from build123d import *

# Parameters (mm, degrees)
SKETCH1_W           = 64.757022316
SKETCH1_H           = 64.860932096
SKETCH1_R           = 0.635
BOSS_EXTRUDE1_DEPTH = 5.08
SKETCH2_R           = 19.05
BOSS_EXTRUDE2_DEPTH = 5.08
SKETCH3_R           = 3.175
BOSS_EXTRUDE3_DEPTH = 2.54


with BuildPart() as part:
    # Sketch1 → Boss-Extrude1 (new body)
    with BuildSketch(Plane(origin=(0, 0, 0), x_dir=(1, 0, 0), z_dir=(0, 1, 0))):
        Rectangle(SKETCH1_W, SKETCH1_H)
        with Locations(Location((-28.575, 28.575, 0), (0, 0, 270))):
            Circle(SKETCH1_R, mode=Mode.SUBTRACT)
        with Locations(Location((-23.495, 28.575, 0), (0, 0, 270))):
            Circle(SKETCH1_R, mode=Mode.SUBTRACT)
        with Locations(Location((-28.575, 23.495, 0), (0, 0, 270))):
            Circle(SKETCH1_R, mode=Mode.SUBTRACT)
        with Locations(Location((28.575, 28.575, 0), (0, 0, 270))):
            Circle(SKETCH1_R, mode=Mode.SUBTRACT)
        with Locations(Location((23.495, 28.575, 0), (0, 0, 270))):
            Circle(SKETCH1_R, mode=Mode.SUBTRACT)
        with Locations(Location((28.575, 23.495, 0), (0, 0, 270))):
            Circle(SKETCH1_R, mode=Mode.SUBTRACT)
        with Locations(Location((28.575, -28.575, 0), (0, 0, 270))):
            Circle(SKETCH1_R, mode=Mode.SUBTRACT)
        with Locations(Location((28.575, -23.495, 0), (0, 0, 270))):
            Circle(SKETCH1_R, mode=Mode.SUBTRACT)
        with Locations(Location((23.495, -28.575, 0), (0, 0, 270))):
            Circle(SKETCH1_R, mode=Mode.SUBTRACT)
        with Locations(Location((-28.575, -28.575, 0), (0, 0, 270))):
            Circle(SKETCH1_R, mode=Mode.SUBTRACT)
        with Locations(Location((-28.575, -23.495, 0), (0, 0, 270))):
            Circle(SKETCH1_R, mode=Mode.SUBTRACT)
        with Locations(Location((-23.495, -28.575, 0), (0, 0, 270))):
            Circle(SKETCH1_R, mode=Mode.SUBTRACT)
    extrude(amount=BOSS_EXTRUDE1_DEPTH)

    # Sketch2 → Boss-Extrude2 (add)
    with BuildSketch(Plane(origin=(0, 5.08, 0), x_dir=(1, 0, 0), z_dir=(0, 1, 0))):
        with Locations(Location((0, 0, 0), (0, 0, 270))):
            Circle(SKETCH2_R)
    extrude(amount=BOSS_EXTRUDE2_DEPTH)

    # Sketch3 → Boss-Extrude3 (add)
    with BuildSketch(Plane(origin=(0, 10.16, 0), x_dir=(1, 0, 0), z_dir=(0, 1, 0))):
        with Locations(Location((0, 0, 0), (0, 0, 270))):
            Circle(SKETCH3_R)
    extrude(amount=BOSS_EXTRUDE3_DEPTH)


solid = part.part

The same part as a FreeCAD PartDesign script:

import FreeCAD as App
import Part
import Sketcher
from FreeCAD import Vector
Q = App.Units.Quantity

doc = App.newDocument("Part")
body = doc.addObject("PartDesign::Body", "Body")

sketch1 = body.newObject("Sketcher::SketchObject", "Sketch")
sketch1.AttachmentSupport = (doc.getObject("XZ_Plane"), [""])
sketch1.MapMode = "FlatFace"
sketch1.addGeometry([
    Part.LineSegment(Vector(-32.4, -32.4, 0), Vector(-32.4, 32.4, 0)),
    Part.LineSegment(Vector(-32.4, 32.4, 0), Vector(32.4, 32.4, 0)),
    Part.LineSegment(Vector(32.4, 32.4, 0), Vector(32.4, -32.4, 0)),
    Part.LineSegment(Vector(32.4, -32.4, 0), Vector(-32.4, -32.4, 0)),
    Part.Circle(Vector(-28.6, 28.6, 0), Vector(0, 0, 1), 0.6),
    Part.Circle(Vector(-23.5, 28.6, 0), Vector(0, 0, 1), 0.6),
    Part.Circle(Vector(-28.6, 23.5, 0), Vector(0, 0, 1), 0.6),
    Part.Circle(Vector(23.5, 28.6, 0), Vector(0, 0, 1), 0.6),
    Part.Circle(Vector(28.6, 28.6, 0), Vector(0, 0, 1), 0.6),
    Part.Circle(Vector(28.6, 23.5, 0), Vector(0, 0, 1), 0.6),
    Part.Circle(Vector(-28.6, -23.5, 0), Vector(0, 0, 1), 0.6),
    Part.Circle(Vector(-28.6, -28.6, 0), Vector(0, 0, 1), 0.6),
    Part.Circle(Vector(-23.5, -28.6, 0), Vector(0, 0, 1), 0.6),
    Part.Circle(Vector(28.6, -23.5, 0), Vector(0, 0, 1), 0.6),
    Part.Circle(Vector(23.5, -28.6, 0), Vector(0, 0, 1), 0.6),
    Part.Circle(Vector(28.6, -28.6, 0), Vector(0, 0, 1), 0.6),
], False)
sketch1.addConstraint([
    Sketcher.Constraint("Coincident", 0, 2, 1, 1),
    Sketcher.Constraint("Coincident", 1, 2, 2, 1),
    Sketcher.Constraint("Coincident", 2, 2, 3, 1),
    Sketcher.Constraint("Coincident", 3, 2, 0, 1),
    Sketcher.Constraint("Vertical", 0),
    Sketcher.Constraint("Horizontal", 1),
    Sketcher.Constraint("Vertical", 2),
    Sketcher.Constraint("Horizontal", 3),
    Sketcher.Constraint("Equal", 4, 5),
    Sketcher.Constraint("Equal", 5, 6),
    Sketcher.Constraint("Equal", 6, 7),
    Sketcher.Constraint("Equal", 7, 8),
    Sketcher.Constraint("Equal", 8, 9),
    Sketcher.Constraint("Equal", 9, 10),
    Sketcher.Constraint("Equal", 10, 11),
    Sketcher.Constraint("Equal", 11, 12),
    Sketcher.Constraint("Equal", 12, 13),
    Sketcher.Constraint("Equal", 13, 14),
    Sketcher.Constraint("Equal", 14, 15),
    Sketcher.Constraint("Symmetric", 9, 3, 10, 3, -1, 1),
    Sketcher.Constraint("Symmetric", 8, 3, 11, 3, -1, 1),
    Sketcher.Constraint("Symmetric", 7, 3, 12, 3, -1, 1),
    Sketcher.Constraint("Symmetric", 6, 3, 13, 3, -1, 1),
    Sketcher.Constraint("Symmetric", 5, 3, 14, 3, -1, 1),
    Sketcher.Constraint("Symmetric", 4, 3, 15, 3, -1, 1),
    Sketcher.Constraint("Symmetric", 0, 2, 2, 2, -1, 1),
    Sketcher.Constraint("Symmetric", 5, 3, 7, 3, -2),
    Sketcher.Constraint("Symmetric", 4, 3, 8, 3, -2),
    Sketcher.Constraint("Symmetric", 6, 3, 9, 3, -2),
    Sketcher.Constraint("Horizontal", 4, 3, 5, 3),
    Sketcher.Constraint("Vertical", 4, 3, 6, 3),
    Sketcher.Constraint("Diameter", 4, Q("0.05 in")),
    Sketcher.Constraint("DistanceX", 4, 3, 5, 3, Q("0.2 in")),
    Sketcher.Constraint("DistanceY", 6, 3, 4, 3, Q("0.2 in")),
    Sketcher.Constraint("DistanceX", 5, 3, 7, 3, Q("1.85 in")),
    Sketcher.Constraint("DistanceY", 10, 3, 6, 3, Q("1.85 in")),
    Sketcher.Constraint("DistanceX", 1, 1, 1, 2, 64.757022),
    Sketcher.Constraint("DistanceY", 0, 1, 0, 2, 64.860932),
])
pad1 = body.newObject("PartDesign::Pad", "Pad")
pad1.Profile = sketch1
pad1.Length = Q("0.2 in")
pad1.Reversed = True

sketch2 = body.newObject("Sketcher::SketchObject", "Sketch001")
sketch2.AttachmentSupport = (doc.getObject("XZ_Plane"), [""])
sketch2.MapMode = "FlatFace"
sketch2.AttachmentOffset = App.Placement(Vector(0, 0, -0.2 * 25.4), App.Rotation())
sketch2.addGeometry(Part.Circle(Vector(0, 0, 0), Vector(0, 0, 1), 19), False)
sketch2.addConstraint([
    Sketcher.Constraint("Coincident", 0, 3, -1, 1),
    Sketcher.Constraint("Diameter", 0, Q("1.5 in")),
])
pad2 = body.newObject("PartDesign::Pad", "Pad001")
pad2.Profile = sketch2
pad2.Length = Q("0.2 in")
pad2.Reversed = True

sketch3 = body.newObject("Sketcher::SketchObject", "Sketch002")
sketch3.AttachmentSupport = (doc.getObject("XZ_Plane"), [""])
sketch3.MapMode = "FlatFace"
sketch3.AttachmentOffset = App.Placement(Vector(0, 0, -0.4 * 25.4), App.Rotation())
sketch3.addGeometry(Part.Circle(Vector(0, 0, 0), Vector(0, 0, 1), 3.2), False)
sketch3.addConstraint([
    Sketcher.Constraint("Coincident", 0, 3, -1, 1),
    Sketcher.Constraint("Diameter", 0, Q("0.25 in")),
])
pad3 = body.newObject("PartDesign::Pad", "Pad002")
pad3.Profile = sketch3
pad3.Length = Q("0.1 in")
pad3.Reversed = True

doc.recompute()
